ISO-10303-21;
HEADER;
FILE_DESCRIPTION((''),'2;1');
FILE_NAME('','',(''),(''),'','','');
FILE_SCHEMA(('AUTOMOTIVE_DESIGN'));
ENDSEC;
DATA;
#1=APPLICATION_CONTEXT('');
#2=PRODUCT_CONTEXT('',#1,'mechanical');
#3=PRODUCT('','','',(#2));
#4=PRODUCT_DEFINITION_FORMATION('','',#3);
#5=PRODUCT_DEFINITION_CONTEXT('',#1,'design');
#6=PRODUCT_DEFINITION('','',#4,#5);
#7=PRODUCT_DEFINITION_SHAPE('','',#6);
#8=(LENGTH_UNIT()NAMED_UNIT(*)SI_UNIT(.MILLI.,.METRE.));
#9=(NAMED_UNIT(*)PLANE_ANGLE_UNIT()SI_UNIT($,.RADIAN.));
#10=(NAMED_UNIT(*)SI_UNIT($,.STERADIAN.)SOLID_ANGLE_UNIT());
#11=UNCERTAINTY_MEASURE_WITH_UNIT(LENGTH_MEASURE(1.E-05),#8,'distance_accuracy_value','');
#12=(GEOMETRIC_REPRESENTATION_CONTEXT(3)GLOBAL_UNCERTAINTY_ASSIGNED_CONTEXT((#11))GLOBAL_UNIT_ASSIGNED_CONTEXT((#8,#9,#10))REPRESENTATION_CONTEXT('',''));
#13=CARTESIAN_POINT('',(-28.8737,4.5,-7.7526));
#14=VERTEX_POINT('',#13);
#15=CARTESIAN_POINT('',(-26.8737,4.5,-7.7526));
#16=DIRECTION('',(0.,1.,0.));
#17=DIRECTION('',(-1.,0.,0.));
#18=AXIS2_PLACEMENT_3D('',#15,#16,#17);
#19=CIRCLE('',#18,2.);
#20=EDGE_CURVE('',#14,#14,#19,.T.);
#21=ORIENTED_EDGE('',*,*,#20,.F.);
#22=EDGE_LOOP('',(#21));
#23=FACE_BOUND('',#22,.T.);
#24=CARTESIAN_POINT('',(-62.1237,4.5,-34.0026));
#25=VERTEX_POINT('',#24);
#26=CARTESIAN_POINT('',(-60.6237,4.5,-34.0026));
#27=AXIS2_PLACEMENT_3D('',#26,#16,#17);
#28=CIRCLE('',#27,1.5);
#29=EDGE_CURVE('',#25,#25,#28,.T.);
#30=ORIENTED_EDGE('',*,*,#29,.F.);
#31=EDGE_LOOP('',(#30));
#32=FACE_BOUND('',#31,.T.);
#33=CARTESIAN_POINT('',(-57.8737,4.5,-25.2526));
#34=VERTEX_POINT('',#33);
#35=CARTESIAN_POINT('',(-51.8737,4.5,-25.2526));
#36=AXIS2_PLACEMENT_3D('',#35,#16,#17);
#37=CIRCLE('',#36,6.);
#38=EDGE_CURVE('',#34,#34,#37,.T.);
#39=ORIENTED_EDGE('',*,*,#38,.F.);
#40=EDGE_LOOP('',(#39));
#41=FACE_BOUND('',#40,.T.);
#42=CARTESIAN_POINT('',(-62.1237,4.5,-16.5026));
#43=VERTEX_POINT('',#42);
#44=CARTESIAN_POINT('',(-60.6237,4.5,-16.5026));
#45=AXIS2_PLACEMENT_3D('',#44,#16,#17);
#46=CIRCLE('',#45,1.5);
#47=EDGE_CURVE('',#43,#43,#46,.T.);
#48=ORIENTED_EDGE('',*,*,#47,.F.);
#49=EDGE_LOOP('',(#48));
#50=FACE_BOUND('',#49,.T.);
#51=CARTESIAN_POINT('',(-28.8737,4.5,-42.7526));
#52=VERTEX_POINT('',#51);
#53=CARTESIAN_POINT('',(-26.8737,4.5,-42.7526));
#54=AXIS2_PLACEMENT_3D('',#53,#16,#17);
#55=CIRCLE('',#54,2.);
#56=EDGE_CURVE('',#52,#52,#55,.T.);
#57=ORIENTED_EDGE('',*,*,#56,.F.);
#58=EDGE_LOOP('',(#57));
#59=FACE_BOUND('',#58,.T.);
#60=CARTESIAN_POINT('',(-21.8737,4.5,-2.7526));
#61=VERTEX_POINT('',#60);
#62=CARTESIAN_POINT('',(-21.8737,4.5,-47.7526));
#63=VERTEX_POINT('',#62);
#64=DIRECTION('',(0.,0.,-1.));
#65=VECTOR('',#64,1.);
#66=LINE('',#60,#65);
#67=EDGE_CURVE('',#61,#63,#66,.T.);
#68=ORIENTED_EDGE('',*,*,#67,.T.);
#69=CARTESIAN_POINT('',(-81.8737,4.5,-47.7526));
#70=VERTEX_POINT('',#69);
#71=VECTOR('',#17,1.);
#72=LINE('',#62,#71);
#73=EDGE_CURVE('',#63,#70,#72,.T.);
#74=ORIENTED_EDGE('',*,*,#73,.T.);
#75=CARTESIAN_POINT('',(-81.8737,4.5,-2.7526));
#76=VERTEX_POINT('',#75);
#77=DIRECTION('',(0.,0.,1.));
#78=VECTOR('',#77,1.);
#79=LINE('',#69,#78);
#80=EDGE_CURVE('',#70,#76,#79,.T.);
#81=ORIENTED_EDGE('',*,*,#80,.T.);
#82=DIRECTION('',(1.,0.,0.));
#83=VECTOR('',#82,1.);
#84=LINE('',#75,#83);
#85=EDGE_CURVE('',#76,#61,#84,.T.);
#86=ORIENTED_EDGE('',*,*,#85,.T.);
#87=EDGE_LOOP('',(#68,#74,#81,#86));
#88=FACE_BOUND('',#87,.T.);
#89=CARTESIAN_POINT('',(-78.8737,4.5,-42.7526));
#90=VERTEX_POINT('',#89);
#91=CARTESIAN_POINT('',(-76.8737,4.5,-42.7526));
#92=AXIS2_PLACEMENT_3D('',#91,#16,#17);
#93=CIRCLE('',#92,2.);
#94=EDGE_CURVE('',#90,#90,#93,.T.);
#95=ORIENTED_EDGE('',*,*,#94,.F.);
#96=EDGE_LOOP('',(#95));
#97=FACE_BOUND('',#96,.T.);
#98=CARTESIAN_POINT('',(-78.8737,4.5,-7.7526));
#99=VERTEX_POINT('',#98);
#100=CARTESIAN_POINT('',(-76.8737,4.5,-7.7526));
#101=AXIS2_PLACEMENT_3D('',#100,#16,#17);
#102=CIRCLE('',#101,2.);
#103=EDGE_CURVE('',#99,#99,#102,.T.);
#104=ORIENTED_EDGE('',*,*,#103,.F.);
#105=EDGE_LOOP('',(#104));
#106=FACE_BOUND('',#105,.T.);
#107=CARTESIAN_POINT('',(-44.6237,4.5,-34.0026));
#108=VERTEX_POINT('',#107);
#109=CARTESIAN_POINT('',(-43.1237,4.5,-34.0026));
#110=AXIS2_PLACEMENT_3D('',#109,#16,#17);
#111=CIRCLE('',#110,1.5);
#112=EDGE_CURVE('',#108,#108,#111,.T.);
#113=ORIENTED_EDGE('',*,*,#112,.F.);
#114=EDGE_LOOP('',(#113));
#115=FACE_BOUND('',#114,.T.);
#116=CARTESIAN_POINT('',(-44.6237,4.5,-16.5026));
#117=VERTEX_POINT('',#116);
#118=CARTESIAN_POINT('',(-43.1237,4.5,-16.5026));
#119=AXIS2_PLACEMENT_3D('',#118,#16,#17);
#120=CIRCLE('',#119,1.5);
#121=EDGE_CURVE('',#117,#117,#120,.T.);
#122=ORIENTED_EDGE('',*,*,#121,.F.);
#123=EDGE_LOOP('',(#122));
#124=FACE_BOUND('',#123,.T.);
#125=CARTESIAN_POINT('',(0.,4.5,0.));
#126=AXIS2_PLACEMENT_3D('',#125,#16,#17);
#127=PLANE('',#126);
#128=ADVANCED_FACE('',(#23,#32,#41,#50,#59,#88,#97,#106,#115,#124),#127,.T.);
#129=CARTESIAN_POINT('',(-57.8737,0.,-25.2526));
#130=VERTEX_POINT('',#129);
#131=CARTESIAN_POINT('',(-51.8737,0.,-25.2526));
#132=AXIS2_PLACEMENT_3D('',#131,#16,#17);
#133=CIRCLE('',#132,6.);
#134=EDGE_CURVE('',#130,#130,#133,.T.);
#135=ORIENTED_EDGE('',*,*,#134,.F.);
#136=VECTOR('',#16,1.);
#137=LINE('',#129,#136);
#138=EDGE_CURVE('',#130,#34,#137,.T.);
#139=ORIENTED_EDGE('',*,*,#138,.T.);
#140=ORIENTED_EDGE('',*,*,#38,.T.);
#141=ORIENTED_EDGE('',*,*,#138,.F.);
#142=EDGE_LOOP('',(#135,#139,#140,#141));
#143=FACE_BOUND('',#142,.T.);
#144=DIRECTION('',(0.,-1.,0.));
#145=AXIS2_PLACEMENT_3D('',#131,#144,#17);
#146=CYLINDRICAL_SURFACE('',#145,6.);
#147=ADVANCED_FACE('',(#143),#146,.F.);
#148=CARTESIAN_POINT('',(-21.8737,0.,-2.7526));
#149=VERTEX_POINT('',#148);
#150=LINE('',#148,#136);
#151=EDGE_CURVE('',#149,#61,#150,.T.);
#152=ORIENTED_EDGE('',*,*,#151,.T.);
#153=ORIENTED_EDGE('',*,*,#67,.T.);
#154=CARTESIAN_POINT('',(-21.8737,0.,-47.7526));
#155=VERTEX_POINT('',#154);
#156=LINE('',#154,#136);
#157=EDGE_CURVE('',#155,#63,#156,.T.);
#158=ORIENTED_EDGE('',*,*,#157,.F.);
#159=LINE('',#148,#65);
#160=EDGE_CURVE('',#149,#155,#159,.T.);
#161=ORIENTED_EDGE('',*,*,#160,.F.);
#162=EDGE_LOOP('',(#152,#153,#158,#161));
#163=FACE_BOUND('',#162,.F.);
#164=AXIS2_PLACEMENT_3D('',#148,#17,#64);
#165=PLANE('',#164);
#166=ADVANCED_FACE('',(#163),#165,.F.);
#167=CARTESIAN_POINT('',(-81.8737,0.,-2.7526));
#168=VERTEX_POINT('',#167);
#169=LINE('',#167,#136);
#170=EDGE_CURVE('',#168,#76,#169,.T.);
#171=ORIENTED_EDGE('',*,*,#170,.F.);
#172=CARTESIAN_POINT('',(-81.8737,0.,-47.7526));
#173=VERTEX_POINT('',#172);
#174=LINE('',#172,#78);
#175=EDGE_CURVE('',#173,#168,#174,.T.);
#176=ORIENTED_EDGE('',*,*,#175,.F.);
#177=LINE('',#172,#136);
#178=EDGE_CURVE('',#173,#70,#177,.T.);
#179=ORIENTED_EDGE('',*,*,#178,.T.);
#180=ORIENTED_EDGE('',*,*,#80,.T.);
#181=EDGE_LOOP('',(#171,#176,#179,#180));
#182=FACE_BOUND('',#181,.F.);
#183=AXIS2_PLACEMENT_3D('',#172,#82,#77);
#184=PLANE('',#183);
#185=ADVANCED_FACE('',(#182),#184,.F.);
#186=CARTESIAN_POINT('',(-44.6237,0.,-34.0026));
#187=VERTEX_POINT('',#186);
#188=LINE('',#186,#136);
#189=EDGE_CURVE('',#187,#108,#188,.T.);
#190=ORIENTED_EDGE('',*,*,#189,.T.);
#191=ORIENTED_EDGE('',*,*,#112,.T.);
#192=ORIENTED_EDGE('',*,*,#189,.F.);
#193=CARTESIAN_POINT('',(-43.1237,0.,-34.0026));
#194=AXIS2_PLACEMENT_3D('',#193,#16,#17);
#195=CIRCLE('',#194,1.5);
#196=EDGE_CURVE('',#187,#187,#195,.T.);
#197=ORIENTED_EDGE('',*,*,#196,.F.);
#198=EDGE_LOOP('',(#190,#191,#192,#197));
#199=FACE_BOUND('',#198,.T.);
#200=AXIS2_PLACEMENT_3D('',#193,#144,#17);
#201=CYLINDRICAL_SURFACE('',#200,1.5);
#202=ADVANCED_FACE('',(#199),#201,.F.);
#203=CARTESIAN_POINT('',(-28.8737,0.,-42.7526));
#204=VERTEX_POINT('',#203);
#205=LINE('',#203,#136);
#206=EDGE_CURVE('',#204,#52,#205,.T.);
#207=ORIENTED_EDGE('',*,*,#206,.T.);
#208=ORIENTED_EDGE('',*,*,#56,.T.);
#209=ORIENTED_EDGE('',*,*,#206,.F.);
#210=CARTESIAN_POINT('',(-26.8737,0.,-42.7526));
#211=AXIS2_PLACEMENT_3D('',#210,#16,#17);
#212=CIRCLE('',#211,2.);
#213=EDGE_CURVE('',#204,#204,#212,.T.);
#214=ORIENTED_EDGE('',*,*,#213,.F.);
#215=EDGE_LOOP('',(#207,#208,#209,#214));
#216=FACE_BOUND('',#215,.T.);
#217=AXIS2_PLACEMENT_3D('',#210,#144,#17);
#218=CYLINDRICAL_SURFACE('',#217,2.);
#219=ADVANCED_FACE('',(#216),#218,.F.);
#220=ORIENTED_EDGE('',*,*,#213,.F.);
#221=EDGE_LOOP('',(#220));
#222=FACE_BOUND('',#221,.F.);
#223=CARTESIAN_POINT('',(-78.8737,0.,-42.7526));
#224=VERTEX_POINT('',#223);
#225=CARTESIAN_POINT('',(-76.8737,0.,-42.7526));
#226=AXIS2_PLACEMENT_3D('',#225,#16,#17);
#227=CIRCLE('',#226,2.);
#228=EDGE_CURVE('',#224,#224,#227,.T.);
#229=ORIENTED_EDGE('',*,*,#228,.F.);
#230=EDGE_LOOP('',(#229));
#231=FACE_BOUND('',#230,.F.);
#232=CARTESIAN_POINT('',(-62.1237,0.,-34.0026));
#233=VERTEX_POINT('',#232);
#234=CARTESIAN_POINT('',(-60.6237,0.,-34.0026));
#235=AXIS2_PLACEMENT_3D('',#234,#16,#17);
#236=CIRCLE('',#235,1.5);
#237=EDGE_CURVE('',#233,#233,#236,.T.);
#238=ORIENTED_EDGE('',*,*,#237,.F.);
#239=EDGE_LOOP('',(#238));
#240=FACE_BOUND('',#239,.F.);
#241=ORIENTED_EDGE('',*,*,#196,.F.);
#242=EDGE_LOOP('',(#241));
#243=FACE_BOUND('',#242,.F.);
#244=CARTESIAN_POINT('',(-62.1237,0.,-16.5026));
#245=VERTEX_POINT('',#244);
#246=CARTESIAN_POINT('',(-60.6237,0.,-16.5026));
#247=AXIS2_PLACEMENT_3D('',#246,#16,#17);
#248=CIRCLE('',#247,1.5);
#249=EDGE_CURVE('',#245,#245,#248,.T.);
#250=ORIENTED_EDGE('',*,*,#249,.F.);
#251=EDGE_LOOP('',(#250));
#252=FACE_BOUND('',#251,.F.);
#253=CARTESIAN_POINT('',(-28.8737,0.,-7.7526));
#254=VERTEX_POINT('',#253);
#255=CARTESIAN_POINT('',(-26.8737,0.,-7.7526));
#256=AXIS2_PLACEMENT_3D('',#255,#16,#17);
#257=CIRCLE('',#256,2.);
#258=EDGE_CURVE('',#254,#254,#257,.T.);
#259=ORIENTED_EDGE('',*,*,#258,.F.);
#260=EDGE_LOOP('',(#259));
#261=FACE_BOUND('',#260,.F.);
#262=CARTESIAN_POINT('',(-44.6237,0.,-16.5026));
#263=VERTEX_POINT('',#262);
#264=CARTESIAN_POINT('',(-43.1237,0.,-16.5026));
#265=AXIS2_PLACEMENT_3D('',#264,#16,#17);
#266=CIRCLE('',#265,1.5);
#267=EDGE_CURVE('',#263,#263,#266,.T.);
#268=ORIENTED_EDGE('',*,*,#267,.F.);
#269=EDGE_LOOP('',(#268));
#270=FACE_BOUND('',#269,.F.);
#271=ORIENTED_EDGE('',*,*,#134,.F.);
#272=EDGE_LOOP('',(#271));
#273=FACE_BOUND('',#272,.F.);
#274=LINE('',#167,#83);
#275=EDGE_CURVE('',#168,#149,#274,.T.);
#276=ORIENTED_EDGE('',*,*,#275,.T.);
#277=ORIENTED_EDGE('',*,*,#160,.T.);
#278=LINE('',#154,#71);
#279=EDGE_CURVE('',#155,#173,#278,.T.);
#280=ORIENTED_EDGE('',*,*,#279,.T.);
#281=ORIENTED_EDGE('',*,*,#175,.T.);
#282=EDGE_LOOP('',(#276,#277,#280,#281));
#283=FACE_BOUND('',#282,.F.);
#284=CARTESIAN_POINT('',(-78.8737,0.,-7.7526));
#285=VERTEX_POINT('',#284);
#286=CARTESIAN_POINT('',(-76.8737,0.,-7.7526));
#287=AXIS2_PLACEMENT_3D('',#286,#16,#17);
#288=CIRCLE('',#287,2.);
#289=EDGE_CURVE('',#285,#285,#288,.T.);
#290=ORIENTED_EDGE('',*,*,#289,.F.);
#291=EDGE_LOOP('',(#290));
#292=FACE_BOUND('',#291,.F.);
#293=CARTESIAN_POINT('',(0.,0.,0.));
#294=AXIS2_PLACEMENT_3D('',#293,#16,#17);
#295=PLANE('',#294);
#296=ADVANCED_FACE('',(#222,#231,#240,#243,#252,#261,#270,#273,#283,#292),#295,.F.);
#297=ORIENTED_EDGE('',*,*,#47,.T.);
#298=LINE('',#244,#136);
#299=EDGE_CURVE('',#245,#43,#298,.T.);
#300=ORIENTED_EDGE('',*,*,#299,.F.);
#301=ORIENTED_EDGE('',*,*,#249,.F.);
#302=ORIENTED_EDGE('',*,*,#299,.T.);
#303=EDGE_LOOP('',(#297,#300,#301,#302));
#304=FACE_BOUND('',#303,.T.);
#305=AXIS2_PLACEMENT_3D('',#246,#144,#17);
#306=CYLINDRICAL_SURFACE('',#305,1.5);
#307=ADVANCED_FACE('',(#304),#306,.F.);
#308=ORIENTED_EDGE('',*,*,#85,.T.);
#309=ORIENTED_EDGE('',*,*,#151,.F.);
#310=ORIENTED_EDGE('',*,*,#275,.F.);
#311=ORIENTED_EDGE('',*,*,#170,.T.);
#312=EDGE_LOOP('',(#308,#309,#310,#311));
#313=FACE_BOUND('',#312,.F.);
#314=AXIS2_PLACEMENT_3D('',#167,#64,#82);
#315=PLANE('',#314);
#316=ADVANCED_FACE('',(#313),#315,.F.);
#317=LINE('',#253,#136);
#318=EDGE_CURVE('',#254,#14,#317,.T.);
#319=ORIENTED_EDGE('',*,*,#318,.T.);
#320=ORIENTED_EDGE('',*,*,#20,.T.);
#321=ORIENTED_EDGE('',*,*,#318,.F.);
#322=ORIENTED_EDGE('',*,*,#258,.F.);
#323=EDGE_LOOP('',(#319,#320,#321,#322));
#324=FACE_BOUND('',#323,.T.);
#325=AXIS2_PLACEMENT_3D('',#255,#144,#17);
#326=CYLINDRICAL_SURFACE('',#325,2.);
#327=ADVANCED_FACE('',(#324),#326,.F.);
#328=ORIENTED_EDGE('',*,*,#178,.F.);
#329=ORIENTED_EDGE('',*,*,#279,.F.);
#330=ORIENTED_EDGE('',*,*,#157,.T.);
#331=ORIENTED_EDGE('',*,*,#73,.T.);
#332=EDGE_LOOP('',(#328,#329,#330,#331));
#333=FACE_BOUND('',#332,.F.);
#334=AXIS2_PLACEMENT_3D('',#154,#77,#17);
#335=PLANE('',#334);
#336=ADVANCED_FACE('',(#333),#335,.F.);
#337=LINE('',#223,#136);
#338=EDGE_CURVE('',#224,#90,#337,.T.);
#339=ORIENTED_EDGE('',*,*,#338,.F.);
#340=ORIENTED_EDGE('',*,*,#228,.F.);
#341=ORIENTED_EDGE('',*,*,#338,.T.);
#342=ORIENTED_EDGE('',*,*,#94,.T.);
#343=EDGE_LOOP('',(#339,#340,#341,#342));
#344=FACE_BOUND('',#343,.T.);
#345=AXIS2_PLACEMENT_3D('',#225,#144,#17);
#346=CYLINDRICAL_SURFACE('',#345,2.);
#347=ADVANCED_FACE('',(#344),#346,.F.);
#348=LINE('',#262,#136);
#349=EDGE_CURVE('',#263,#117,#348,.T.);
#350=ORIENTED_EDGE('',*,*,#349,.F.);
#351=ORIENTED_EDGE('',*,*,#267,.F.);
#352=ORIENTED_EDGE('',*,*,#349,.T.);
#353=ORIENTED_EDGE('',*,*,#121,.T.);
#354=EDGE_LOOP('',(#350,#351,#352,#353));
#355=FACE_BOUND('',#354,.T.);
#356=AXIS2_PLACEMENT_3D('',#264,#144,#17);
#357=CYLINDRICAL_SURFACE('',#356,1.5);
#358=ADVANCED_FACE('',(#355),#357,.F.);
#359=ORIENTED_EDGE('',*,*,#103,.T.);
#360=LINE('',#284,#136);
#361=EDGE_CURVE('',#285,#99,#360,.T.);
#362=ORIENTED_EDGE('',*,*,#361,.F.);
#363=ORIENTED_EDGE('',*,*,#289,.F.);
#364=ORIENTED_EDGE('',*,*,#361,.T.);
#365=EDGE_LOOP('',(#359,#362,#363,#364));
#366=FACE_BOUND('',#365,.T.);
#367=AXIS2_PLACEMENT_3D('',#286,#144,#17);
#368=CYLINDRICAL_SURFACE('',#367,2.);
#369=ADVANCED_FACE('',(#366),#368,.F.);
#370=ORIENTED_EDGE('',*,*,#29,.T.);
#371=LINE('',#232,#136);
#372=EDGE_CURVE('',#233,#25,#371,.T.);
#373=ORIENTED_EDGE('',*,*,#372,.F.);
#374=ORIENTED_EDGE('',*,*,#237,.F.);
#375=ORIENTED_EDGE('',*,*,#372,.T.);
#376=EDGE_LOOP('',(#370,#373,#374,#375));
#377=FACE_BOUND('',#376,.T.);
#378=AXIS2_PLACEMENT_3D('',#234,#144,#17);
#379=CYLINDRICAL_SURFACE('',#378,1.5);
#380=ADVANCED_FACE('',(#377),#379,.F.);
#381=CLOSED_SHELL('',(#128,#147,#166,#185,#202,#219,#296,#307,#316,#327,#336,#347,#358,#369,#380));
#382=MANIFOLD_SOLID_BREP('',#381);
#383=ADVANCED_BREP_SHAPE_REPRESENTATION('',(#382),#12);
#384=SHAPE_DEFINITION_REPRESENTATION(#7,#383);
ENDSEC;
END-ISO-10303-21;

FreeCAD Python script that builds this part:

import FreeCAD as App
import Part
import Sketcher
from FreeCAD import Vector

doc = App.newDocument("Part")
body = doc.addObject("PartDesign::Body", "Body")

sketch1 = body.newObject("Sketcher::SketchObject", "Sketch")
sketch1.AttachmentSupport = (doc.getObject("XZ_Plane"), [""])
sketch1.MapMode = "FlatFace"
sketch1.addGeometry(Part.LineSegment(Vector(-81.8737, -47.7526, 0), Vector(-81.8737, -2.7526, 0)), False)
sketch1.addGeometry(Part.LineSegment(Vector(-81.8737, -2.7526, 0), Vector(-21.8737, -2.7526, 0)), False)
sketch1.addGeometry(Part.LineSegment(Vector(-21.8737, -2.7526, 0), Vector(-21.8737, -47.7526, 0)), False)
sketch1.addGeometry(Part.LineSegment(Vector(-21.8737, -47.7526, 0), Vector(-81.8737, -47.7526, 0)), False)
sketch1.addGeometry(Part.Circle(Vector(-26.8737, -42.7526, 0), Vector(0, 0, 1), 2), False)
sketch1.addGeometry(Part.Circle(Vector(-43.1237, -34.0026, 0), Vector(0, 0, 1), 1.5), False)
sketch1.addGeometry(Part.Circle(Vector(-76.8737, -42.7526, 0), Vector(0, 0, 1), 2), False)
sketch1.addGeometry(Part.Circle(Vector(-60.6237, -34.0026, 0), Vector(0, 0, 1), 1.5), False)
sketch1.addGeometry(Part.Circle(Vector(-43.1237, -16.5026, 0), Vector(0, 0, 1), 1.5), False)
sketch1.addGeometry(Part.Circle(Vector(-26.8737, -7.7526, 0), Vector(0, 0, 1), 2), False)
sketch1.addGeometry(Part.Circle(Vector(-51.8737, -25.2526, 0), Vector(0, 0, 1), 6), False)
sketch1.addGeometry(Part.Circle(Vector(-60.6237, -16.5026, 0), Vector(0, 0, 1), 1.5), False)
sketch1.addGeometry(Part.Circle(Vector(-76.8737, -7.7526, 0), Vector(0, 0, 1), 2), False)
sketch1.addConstraint(Sketcher.Constraint("Coincident", 0, 2, 1, 1))
sketch1.addConstraint(Sketcher.Constraint("Coincident", 1, 2, 2, 1))
sketch1.addConstraint(Sketcher.Constraint("Coincident", 2, 2, 3, 1))
sketch1.addConstraint(Sketcher.Constraint("Coincident", 3, 2, 0, 1))
sketch1.addConstraint(Sketcher.Constraint("Vertical", 0))
sketch1.addConstraint(Sketcher.Constraint("Horizontal", 1))
sketch1.addConstraint(Sketcher.Constraint("Vertical", 2))
sketch1.addConstraint(Sketcher.Constraint("Horizontal", 3))
sketch1.addConstraint(Sketcher.Constraint("Equal", 4, 6))
sketch1.addConstraint(Sketcher.Constraint("Equal", 5, 7))
sketch1.addConstraint(Sketcher.Constraint("Equal", 7, 8))
sketch1.addConstraint(Sketcher.Constraint("Equal", 6, 9))
sketch1.addConstraint(Sketcher.Constraint("Equal", 8, 11))
sketch1.addConstraint(Sketcher.Constraint("Equal", 9, 12))
sketch1.addConstraint(Sketcher.Constraint("Horizontal", 4, 3, 6, 3))
sketch1.addConstraint(Sketcher.Constraint("Horizontal", 5, 3, 7, 3))
sketch1.addConstraint(Sketcher.Constraint("Horizontal", 8, 3, 11, 3))
sketch1.addConstraint(Sketcher.Constraint("Horizontal", 9, 3, 12, 3))
sketch1.addConstraint(Sketcher.Constraint("Vertical", 5, 3, 8, 3))
sketch1.addConstraint(Sketcher.Constraint("Vertical", 4, 3, 9, 3))
sketch1.addConstraint(Sketcher.Constraint("Vertical", 7, 3, 11, 3))
sketch1.addConstraint(Sketcher.Constraint("Vertical", 6, 3, 12, 3))
sketch1.addConstraint(Sketcher.Constraint("Diameter", 4, 4.0))
sketch1.addConstraint(Sketcher.Constraint("Diameter", 5, 3.0))
sketch1.addConstraint(Sketcher.Constraint("Diameter", 10, 12.0))
sketch1.addConstraint(Sketcher.Constraint("DistanceX", 1, 1, 1, 2, 60.0))
sketch1.addConstraint(Sketcher.Constraint("DistanceY", 0, 1, 0, 2, 45.0))
sketch1.addConstraint(Sketcher.Constraint("DistanceX", 6, 3, 4, 3, 50.0))
sketch1.addConstraint(Sketcher.Constraint("DistanceY", 4, 3, 9, 3, 35.0))
sketch1.addConstraint(Sketcher.Constraint("DistanceX", 0, 2, 12, 3, 5.0))
sketch1.addConstraint(Sketcher.Constraint("DistanceY", 12, 3, 0, 2, 5.0))
sketch1.addConstraint(Sketcher.Constraint("DistanceX", 0, 2, 10, 3, 30.0))
sketch1.addConstraint(Sketcher.Constraint("DistanceX", 7, 3, 5, 3, 17.5))
sketch1.addConstraint(Sketcher.Constraint("DistanceY", 5, 3, 8, 3, 17.5))
sketch1.addConstraint(Sketcher.Constraint("DistanceY", 4, 3, 10, 3, 17.5))
sketch1.addConstraint(Sketcher.Constraint("DistanceX", 5, 3, 4, 3, 16.25))
sketch1.addConstraint(Sketcher.Constraint("DistanceY", 4, 3, 5, 3, 8.75))
sketch1.addConstraint(Sketcher.Constraint("DistanceX", 4, 3, -1, 1, 26.8737))
sketch1.addConstraint(Sketcher.Constraint("DistanceY", 4, 3, -1, 1, 42.7526))
pad1 = body.newObject("PartDesign::Pad", "Pad")
pad1.Profile = sketch1
pad1.Length = 4.5
pad1.Reversed = True

doc.recompute()
